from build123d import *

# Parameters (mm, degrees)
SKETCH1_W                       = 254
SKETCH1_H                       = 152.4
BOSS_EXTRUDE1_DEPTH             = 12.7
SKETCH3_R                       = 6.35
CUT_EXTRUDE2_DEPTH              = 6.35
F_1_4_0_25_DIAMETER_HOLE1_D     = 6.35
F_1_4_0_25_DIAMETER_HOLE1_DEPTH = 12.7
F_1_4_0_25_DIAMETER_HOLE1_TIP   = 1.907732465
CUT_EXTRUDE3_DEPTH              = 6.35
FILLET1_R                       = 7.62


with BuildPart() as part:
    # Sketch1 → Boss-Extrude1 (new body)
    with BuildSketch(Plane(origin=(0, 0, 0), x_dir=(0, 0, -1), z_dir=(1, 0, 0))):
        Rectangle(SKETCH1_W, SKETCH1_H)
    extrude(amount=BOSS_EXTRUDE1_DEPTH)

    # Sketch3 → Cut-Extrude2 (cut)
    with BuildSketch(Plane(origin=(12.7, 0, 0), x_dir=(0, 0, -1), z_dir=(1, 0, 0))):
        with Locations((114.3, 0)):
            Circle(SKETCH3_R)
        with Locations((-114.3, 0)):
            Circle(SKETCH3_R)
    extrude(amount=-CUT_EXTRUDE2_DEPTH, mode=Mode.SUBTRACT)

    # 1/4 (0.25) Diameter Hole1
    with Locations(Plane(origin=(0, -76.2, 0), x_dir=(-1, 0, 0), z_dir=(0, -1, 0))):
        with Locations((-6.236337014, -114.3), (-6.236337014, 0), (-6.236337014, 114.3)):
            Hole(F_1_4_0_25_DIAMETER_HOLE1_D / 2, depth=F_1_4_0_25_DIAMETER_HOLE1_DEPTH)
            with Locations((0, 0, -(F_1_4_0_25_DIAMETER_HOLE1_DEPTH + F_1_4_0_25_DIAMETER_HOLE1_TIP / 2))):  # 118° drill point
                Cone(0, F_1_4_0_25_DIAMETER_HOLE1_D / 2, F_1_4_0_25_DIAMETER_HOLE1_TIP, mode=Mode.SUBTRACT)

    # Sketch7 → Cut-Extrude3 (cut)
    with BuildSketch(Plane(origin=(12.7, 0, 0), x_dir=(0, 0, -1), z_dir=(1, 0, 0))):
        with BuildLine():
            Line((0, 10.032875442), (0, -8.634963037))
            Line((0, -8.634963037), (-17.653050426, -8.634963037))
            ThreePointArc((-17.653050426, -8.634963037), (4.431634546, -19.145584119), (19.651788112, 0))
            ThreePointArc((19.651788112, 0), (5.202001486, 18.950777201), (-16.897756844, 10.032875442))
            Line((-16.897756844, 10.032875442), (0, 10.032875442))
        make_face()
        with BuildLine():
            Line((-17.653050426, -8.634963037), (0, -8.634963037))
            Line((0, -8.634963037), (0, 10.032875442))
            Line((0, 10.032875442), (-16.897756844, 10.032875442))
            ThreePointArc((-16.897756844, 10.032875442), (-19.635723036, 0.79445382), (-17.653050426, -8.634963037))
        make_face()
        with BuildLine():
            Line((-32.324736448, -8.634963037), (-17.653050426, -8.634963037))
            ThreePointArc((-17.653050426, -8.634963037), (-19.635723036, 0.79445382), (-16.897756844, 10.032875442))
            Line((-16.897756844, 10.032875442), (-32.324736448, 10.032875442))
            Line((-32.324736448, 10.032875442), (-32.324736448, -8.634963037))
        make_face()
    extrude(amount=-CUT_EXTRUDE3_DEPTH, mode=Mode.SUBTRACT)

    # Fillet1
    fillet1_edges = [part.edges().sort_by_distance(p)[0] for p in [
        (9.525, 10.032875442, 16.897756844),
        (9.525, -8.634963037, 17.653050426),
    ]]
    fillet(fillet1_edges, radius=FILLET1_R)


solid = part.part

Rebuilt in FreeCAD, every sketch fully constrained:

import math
import FreeCAD as App
import Part
import Sketcher

V = App.Vector
Q = App.Units.Quantity


def edges_at(feature, points):
    """Names of the edges that pass closest to the given points."""
    edges = feature.Shape.Edges
    near = lambda p: min(range(len(edges)), key=lambda i: edges[i].distToShape(Part.Vertex(*p))[0])
    return sorted({f"Edge{near(p) + 1}" for p in points})

doc = App.newDocument("Part")
body = doc.addObject("PartDesign::Body", "Body")

sketch1 = body.newObject("Sketcher::SketchObject", "Sketch")
sketch1.AttachmentSupport = (doc.getObject("YZ_Plane"), [""])
sketch1.MapMode = "FlatFace"
sketch1.addGeometry(Part.LineSegment(V(76, 127, 0), V(-76, 127, 0)), False)
sketch1.addGeometry(Part.LineSegment(V(-76, 127, 0), V(-76, -127, 0)), False)
sketch1.addGeometry(Part.LineSegment(V(-76, -127, 0), V(76, -127, 0)), False)
sketch1.addGeometry(Part.LineSegment(V(76, -127, 0), V(76, 127, 0)), False)
sketch1.addConstraint(Sketcher.Constraint("Coincident", 0, 2, 1, 1))
sketch1.addConstraint(Sketcher.Constraint("Coincident", 1, 2, 2, 1))
sketch1.addConstraint(Sketcher.Constraint("Coincident", 2, 2, 3, 1))
sketch1.addConstraint(Sketcher.Constraint("Coincident", 3, 2, 0, 1))
sketch1.addConstraint(Sketcher.Constraint("Horizontal", 0))
sketch1.addConstraint(Sketcher.Constraint("Vertical", 1))
sketch1.addConstraint(Sketcher.Constraint("Horizontal", 2))
sketch1.addConstraint(Sketcher.Constraint("Vertical", 3))
sketch1.addConstraint(Sketcher.Constraint("Symmetric", 0, 2, 2, 2, -1, 1))
sketch1.addConstraint(Sketcher.Constraint("DistanceX", 0, 2, 0, 1, Q("6 in")))
sketch1.addConstraint(Sketcher.Constraint("DistanceY", 1, 2, 1, 1, Q("10 in")))
pad1 = body.newObject("PartDesign::Pad", "Pad")
pad1.Profile = sketch1
pad1.Length = Q("0.5 in")

sketch2 = body.newObject("Sketcher::SketchObject", "Sketch001")
sketch2.AttachmentSupport = (doc.getObject("YZ_Plane"), [""])
sketch2.MapMode = "FlatFace"
sketch2.AttachmentOffset = App.Placement(V(0, 0, 0.5 * 25.4), App.Rotation())
sketch2.addGeometry(Part.Circle(V(0, -114, 0), V(0, 0, 1), 6), False)
sketch2.addGeometry(Part.Circle(V(0, 114, 0), V(0, 0, 1), 6), False)
sketch2.addConstraint(Sketcher.Constraint("Equal", 0, 1))
sketch2.addConstraint(Sketcher.Constraint("Symmetric", 0, 3, 1, 3, -1, 1))
sketch2.addConstraint(Sketcher.Constraint("PointOnObject", 0, 3, -2))
sketch2.addConstraint(Sketcher.Constraint("Diameter", 0, Q("0.5 in")))
sketch2.addConstraint(Sketcher.Constraint("DistanceY", 0, 3, 1, 3, Q("9 in")))
pocket1 = body.newObject("PartDesign::Pocket", "Pocket")
pocket1.Profile = sketch2
pocket1.Length = Q("0.25 in")

sketch3 = body.newObject("Sketcher::SketchObject", "Sketch002")
sketch3.AttachmentSupport = (doc.getObject("XZ_Plane"), [""])
sketch3.MapMode = "FlatFace"
sketch3.AttachmentOffset = App.Placement(V(0, 0, 3 * 25.4), App.Rotation())
sketch3.addGeometry(Part.Circle(V(6.2, 114.3, 0), V(0, 0, 1), 3.2), False)
sketch3.addGeometry(Part.Circle(V(6.2, 0, 0), V(0, 0, 1), 3.2), False)
sketch3.addGeometry(Part.Circle(V(6.2, -114.3, 0), V(0, 0, 1), 3.2), False)
sketch3.addConstraint(Sketcher.Constraint("Equal", 0, 1))
sketch3.addConstraint(Sketcher.Constraint("Equal", 1, 2))
sketch3.addConstraint(Sketcher.Constraint("Symmetric", 0, 3, 2, 3, -1))
sketch3.addConstraint(Sketcher.Constraint("PointOnObject", 1, 3, -1))
sketch3.addConstraint(Sketcher.Constraint("Vertical", 0, 3, 1, 3))
sketch3.addConstraint(Sketcher.Constraint("Diameter", 0, Q("0.25 in")))
sketch3.addConstraint(Sketcher.Constraint("DistanceY", 2, 3, 0, 3, Q("9 in")))
sketch3.addConstraint(Sketcher.Constraint("DistanceX", -1, 1, 0, 3, 6.236337))
doc.recompute()
hole = body.newObject("PartDesign::Hole", "Hole")
hole.Profile = sketch3
hole.ThreadType = "None"
hole.Diameter = Q("0.25 in")
hole.DepthType = "Dimension"
hole.Depth = Q("0.5 in")
hole.DrillPoint = "Angled"
hole.DrillPointAngle = 118

sketch4 = body.newObject("Sketcher::SketchObject", "Sketch003")
sketch4.AttachmentSupport = (doc.getObject("YZ_Plane"), [""])
sketch4.MapMode = "FlatFace"
sketch4.AttachmentOffset = App.Placement(V(0, 0, 0.5 * 25.4), App.Rotation())
sketch4.addGeometry(Part.ArcOfCircle(Part.Circle(V(0, 0, 0), V(0, 0, 1), 20), math.radians(116), math.radians(270)), False)
sketch4.addGeometry(Part.ArcOfCircle(Part.Circle(V(0, 0, 0), V(0, 0, 1), 20), math.radians(-90), math.radians(59)), False)
sketch4.addGeometry(Part.LineSegment(V(10, 17, 0), V(10, 32, 0)), False)
sketch4.addGeometry(Part.LineSegment(V(10, 32, 0), V(-9, 32, 0)), False)
sketch4.addGeometry(Part.LineSegment(V(-9, 32, 0), V(-9, 18, 0)), False)
sketch4.addConstraint(Sketcher.Constraint("Tangent", 0, 2, 1, 1))
sketch4.addConstraint(Sketcher.Constraint("Coincident", 1, 2, 2, 1))
sketch4.addConstraint(Sketcher.Constraint("Coincident", 2, 2, 3, 1))
sketch4.addConstraint(Sketcher.Constraint("Coincident", 3, 2, 4, 1))
sketch4.addConstraint(Sketcher.Constraint("Coincident", 4, 2, 0, 1))
sketch4.addConstraint(Sketcher.Constraint("Vertical", 2))
sketch4.addConstraint(Sketcher.Constraint("Horizontal", 3))
sketch4.addConstraint(Sketcher.Constraint("Vertical", 4))
sketch4.addConstraint(Sketcher.Constraint("Coincident", 0, 3, -1, 1))
sketch4.addConstraint(Sketcher.Constraint("Equal", 0, 1))
sketch4.addConstraint(Sketcher.Constraint("PointOnObject", 0, 2, -2))
sketch4.addConstraint(Sketcher.Constraint("Radius", 0, 19.651788))
sketch4.addConstraint(Sketcher.Constraint("DistanceX", 3, 2, 3, 1, 18.667838))
sketch4.addConstraint(Sketcher.Constraint("DistanceY", 2, 1, 2, 2, 15.42698))
sketch4.addConstraint(Sketcher.Constraint("DistanceY", 4, 2, 4, 1, 14.671686))
pocket2 = body.newObject("PartDesign::Pocket", "Pocket001")
pocket2.Profile = sketch4
pocket2.Length = Q("0.25 in")
doc.recompute()

fillet = body.newObject("PartDesign::Fillet", "Fillet")
fillet.Base = (pocket2, edges_at(pocket2, [(9.525, 10.033, 16.898), (9.525, -8.635, 17.653)]))
fillet.Radius = Q("0.3 in")

doc.recompute()
